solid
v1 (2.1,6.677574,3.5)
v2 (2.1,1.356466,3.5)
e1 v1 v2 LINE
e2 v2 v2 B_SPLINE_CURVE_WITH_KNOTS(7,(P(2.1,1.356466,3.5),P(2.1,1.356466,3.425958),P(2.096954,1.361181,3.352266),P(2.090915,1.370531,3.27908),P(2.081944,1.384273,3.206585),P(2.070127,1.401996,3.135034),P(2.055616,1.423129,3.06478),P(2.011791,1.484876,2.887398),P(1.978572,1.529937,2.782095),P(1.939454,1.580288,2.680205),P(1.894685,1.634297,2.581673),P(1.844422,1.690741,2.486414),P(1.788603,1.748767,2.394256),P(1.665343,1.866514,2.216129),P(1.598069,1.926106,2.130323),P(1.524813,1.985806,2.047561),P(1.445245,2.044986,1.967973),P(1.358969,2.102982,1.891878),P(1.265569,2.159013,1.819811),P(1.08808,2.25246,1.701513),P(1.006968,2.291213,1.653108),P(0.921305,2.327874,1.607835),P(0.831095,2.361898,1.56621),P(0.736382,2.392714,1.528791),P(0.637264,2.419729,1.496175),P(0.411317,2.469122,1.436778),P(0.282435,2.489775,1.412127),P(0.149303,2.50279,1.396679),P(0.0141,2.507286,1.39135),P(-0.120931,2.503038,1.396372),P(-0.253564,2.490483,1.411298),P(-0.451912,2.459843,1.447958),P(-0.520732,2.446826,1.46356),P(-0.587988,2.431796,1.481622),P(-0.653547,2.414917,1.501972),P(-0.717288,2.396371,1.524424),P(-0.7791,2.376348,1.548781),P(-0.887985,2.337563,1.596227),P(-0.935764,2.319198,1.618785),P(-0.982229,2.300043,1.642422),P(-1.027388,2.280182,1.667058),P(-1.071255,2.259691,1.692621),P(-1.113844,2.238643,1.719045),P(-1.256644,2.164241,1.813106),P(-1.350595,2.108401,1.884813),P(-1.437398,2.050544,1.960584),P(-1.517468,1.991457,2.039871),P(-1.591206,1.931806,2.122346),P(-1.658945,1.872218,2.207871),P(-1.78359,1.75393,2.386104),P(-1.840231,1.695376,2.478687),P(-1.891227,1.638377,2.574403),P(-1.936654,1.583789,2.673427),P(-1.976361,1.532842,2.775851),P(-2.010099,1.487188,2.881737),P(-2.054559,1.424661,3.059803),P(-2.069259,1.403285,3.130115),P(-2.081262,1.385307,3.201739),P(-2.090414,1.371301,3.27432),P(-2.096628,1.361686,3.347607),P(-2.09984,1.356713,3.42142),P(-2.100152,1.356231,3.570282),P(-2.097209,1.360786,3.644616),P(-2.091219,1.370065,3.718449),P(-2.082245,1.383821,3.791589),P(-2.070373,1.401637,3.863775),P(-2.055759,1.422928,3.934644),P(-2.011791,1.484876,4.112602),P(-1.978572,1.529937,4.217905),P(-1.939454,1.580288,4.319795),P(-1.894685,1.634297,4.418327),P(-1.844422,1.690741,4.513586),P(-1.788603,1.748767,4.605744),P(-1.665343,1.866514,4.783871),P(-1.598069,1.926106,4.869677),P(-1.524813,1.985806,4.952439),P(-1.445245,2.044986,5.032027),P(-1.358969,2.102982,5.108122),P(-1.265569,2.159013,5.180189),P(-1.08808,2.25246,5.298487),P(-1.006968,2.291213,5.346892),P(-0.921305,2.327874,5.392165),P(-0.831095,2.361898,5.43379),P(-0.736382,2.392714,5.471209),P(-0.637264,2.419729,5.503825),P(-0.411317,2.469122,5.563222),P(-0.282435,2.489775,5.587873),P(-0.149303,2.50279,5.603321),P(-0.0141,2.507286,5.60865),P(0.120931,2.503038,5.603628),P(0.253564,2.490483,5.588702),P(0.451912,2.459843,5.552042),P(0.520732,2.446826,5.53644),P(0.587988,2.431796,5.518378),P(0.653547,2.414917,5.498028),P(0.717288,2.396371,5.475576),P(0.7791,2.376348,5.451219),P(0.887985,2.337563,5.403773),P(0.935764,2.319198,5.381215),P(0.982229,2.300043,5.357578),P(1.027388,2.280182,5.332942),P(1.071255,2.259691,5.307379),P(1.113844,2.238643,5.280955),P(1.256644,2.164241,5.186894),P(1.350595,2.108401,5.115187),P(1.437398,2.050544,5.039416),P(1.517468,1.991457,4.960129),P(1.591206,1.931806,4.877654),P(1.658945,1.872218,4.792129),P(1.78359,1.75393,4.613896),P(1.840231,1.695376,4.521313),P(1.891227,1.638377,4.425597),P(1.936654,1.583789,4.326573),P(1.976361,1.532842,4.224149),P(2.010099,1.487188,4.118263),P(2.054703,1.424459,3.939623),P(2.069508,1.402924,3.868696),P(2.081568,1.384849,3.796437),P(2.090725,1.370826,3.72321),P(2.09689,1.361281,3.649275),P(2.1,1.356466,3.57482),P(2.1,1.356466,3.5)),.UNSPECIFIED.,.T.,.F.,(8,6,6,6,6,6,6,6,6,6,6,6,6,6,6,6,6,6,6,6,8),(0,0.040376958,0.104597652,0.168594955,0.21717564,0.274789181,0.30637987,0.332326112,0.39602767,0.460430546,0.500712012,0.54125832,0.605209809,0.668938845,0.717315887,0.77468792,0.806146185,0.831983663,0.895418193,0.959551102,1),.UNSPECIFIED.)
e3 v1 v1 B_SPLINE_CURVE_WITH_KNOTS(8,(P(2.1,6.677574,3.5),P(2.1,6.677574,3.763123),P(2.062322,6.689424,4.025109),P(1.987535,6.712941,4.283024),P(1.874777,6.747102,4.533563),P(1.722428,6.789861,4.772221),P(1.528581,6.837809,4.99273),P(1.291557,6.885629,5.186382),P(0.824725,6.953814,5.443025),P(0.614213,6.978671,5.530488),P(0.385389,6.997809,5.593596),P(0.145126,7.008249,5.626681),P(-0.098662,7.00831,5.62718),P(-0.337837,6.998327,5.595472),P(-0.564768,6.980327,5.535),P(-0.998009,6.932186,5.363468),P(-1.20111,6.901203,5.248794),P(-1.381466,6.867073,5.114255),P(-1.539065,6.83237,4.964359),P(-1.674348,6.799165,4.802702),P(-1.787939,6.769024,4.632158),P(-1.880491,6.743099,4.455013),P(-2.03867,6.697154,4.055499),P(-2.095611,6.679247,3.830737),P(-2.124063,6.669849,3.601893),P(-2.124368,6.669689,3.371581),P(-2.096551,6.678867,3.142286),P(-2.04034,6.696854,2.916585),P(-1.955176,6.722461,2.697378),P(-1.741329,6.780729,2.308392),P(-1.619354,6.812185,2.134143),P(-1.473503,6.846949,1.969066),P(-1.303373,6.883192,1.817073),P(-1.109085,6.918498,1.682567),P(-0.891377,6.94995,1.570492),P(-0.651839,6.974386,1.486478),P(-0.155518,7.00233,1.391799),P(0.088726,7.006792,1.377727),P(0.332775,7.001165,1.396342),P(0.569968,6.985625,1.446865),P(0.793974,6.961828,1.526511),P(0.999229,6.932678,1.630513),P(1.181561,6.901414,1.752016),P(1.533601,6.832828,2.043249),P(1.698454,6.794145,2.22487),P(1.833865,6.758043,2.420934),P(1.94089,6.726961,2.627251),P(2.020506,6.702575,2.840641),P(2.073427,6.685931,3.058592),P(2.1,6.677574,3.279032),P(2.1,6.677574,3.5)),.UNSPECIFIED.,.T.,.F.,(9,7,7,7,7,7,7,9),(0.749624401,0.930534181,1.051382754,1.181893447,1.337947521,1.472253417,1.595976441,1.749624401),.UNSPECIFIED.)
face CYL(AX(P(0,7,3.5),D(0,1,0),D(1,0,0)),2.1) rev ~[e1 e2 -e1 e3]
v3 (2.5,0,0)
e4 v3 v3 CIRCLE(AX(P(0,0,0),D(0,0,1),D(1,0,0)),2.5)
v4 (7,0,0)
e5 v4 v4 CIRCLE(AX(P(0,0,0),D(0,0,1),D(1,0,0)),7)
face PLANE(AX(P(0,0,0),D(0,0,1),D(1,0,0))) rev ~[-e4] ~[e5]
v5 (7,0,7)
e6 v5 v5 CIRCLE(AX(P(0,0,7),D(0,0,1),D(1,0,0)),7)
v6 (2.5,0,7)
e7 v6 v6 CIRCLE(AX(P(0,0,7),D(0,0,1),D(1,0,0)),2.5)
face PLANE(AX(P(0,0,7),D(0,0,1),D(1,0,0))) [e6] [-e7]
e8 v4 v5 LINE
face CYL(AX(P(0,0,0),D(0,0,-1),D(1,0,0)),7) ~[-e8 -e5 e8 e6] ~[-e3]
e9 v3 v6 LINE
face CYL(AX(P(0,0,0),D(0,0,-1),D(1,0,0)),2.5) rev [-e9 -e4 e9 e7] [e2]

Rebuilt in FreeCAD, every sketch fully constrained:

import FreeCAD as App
import Part
import Sketcher

V = App.Vector
Q = App.Units.Quantity

doc = App.newDocument("Part")
body = doc.addObject("PartDesign::Body", "Body")

sketch1 = body.newObject("Sketcher::SketchObject", "Sketch")
sketch1.AttachmentSupport = (doc.getObject("XY_Plane"), [""])
sketch1.MapMode = "FlatFace"
sketch1.addGeometry(Part.Circle(V(0, 0, 0), V(0, 0, 1), 7), False)
sketch1.addGeometry(Part.Circle(V(0, 0, 0), V(0, 0, 1), 2.5), False)
sketch1.addConstraint(Sketcher.Constraint("Coincident", 0, 3, -1, 1))
sketch1.addConstraint(Sketcher.Constraint("Coincident", 1, 3, -1, 1))
sketch1.addConstraint(Sketcher.Constraint("Diameter", 0, Q("14 mm")))
sketch1.addConstraint(Sketcher.Constraint("Diameter", 1, Q("5 mm")))
pad1 = body.newObject("PartDesign::Pad", "Pad")
pad1.Profile = sketch1
pad1.Length = 7

sketch2 = body.newObject("Sketcher::SketchObject", "Sketch001")
sketch2.AttachmentSupport = (doc.getObject("XZ_Plane"), [""])
sketch2.MapMode = "FlatFace"
sketch2.AttachmentOffset = App.Placement(V(0, 0, -7), App.Rotation())
sketch2.addGeometry(Part.Circle(V(0, 3.5, 0), V(0, 0, 1), 2.1), False)
sketch2.addConstraint(Sketcher.Constraint("PointOnObject", 0, 3, -2))
sketch2.addConstraint(Sketcher.Constraint("Diameter", 0, Q("4.2 mm")))
sketch2.addConstraint(Sketcher.Constraint("DistanceY", -1, 1, 0, 3, Q("3.5 mm")))
pocket1 = body.newObject("PartDesign::Pocket", "Pocket")
pocket1.Profile = sketch2
pocket1.Type = "UpToFirst"
pocket1.Reversed = True

doc.recompute()
